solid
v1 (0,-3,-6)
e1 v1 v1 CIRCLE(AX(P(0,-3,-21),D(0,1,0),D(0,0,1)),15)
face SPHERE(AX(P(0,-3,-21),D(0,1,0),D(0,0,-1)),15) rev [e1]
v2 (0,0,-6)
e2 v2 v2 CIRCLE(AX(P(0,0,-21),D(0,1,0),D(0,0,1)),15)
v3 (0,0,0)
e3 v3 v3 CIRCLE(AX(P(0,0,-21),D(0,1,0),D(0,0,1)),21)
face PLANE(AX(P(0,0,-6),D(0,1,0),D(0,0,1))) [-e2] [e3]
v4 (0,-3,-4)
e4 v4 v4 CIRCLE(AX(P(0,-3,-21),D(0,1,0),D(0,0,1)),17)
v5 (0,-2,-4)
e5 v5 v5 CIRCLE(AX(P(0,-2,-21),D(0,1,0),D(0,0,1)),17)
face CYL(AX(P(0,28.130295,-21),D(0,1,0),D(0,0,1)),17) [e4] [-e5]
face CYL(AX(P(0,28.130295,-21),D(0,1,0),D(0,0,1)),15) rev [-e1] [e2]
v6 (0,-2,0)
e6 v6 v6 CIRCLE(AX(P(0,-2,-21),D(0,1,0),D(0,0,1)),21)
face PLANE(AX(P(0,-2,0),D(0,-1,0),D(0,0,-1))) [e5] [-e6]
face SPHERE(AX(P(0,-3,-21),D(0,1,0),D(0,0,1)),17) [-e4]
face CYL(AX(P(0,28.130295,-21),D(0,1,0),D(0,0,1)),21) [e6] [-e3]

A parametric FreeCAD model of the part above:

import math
import FreeCAD as App
import Part
import Sketcher

doc = App.newDocument("Part")
body = doc.addObject("PartDesign::Body", "Body")

sketch1 = body.newObject("Sketcher::SketchObject", "Sketch")
sketch1.AttachmentSupport = (doc.getObject("YZ_Plane"), [""])
sketch1.MapMode = "FlatFace"
sketch1.addGeometry([
    Part.LineSegment(App.Vector(0, 0, 0), App.Vector(-2, 0, 0)),
    Part.LineSegment(App.Vector(-2, 0, 0), App.Vector(-2, -4, 0)),
    Part.LineSegment(App.Vector(-2, -4, 0), App.Vector(-3, -4, 0)),
    Part.ArcOfCircle(Part.Circle(App.Vector(-3, -21, 0), App.Vector(0, 0, 1), 17), math.radians(90), math.radians(180)),
    Part.LineSegment(App.Vector(-20, -21, 0), App.Vector(-18, -21, 0)),
    Part.ArcOfCircle(Part.Circle(App.Vector(-3, -21, 0), App.Vector(0, 0, 1), 15), math.radians(90), math.radians(180)),
    Part.LineSegment(App.Vector(-3, -6, 0), App.Vector(0, -6, 0)),
    Part.LineSegment(App.Vector(0, -6, 0), App.Vector(0, 0, 0)),
], False)
sketch1.addGeometry(Part.LineSegment(App.Vector(0, -21, 0), App.Vector(-20, -21, 0)), True)
sketch1.addConstraint([
    Sketcher.Constraint("Coincident", 0, 2, 1, 1),
    Sketcher.Constraint("Coincident", 1, 2, 2, 1),
    Sketcher.Constraint("Tangent", 2, 2, 3, 1),
    Sketcher.Constraint("Coincident", 3, 2, 4, 1),
    Sketcher.Constraint("Coincident", 4, 2, 5, 2),
    Sketcher.Constraint("Tangent", 5, 1, 6, 1),
    Sketcher.Constraint("Coincident", 6, 2, 7, 1),
    Sketcher.Constraint("Coincident", 7, 2, 0, 1),
    Sketcher.Constraint("Horizontal", 0),
    Sketcher.Constraint("Vertical", 1),
    Sketcher.Constraint("Horizontal", 2),
    Sketcher.Constraint("Horizontal", 4),
    Sketcher.Constraint("Horizontal", 6),
    Sketcher.Constraint("Vertical", 7),
    Sketcher.Constraint("Horizontal", 8),
    Sketcher.Constraint("Coincident", 7, 2, -1, 1),
    Sketcher.Constraint("Coincident", 5, 3, 3, 3),
    Sketcher.Constraint("Coincident", 8, 2, 3, 2),
    Sketcher.Constraint("PointOnObject", 8, 1, -2),
    Sketcher.Constraint("Horizontal", 5, 3, 3, 2),
    Sketcher.Constraint("Equal", 0, 4),
    Sketcher.Constraint("Radius", 3, 17.0),
    Sketcher.Constraint("Radius", 5, 15.0),
    Sketcher.Constraint("DistanceX", 2, 2, 2, 1, 1.0),
    Sketcher.Constraint("DistanceY", 1, 2, 1, 1, 4.0),
])
revolution = body.newObject("PartDesign::Revolution", "Revolution")
revolution.Profile = sketch1
revolution.ReferenceAxis = (sketch1, ["Axis0"])
revolution.Angle = 360

doc.recompute()
